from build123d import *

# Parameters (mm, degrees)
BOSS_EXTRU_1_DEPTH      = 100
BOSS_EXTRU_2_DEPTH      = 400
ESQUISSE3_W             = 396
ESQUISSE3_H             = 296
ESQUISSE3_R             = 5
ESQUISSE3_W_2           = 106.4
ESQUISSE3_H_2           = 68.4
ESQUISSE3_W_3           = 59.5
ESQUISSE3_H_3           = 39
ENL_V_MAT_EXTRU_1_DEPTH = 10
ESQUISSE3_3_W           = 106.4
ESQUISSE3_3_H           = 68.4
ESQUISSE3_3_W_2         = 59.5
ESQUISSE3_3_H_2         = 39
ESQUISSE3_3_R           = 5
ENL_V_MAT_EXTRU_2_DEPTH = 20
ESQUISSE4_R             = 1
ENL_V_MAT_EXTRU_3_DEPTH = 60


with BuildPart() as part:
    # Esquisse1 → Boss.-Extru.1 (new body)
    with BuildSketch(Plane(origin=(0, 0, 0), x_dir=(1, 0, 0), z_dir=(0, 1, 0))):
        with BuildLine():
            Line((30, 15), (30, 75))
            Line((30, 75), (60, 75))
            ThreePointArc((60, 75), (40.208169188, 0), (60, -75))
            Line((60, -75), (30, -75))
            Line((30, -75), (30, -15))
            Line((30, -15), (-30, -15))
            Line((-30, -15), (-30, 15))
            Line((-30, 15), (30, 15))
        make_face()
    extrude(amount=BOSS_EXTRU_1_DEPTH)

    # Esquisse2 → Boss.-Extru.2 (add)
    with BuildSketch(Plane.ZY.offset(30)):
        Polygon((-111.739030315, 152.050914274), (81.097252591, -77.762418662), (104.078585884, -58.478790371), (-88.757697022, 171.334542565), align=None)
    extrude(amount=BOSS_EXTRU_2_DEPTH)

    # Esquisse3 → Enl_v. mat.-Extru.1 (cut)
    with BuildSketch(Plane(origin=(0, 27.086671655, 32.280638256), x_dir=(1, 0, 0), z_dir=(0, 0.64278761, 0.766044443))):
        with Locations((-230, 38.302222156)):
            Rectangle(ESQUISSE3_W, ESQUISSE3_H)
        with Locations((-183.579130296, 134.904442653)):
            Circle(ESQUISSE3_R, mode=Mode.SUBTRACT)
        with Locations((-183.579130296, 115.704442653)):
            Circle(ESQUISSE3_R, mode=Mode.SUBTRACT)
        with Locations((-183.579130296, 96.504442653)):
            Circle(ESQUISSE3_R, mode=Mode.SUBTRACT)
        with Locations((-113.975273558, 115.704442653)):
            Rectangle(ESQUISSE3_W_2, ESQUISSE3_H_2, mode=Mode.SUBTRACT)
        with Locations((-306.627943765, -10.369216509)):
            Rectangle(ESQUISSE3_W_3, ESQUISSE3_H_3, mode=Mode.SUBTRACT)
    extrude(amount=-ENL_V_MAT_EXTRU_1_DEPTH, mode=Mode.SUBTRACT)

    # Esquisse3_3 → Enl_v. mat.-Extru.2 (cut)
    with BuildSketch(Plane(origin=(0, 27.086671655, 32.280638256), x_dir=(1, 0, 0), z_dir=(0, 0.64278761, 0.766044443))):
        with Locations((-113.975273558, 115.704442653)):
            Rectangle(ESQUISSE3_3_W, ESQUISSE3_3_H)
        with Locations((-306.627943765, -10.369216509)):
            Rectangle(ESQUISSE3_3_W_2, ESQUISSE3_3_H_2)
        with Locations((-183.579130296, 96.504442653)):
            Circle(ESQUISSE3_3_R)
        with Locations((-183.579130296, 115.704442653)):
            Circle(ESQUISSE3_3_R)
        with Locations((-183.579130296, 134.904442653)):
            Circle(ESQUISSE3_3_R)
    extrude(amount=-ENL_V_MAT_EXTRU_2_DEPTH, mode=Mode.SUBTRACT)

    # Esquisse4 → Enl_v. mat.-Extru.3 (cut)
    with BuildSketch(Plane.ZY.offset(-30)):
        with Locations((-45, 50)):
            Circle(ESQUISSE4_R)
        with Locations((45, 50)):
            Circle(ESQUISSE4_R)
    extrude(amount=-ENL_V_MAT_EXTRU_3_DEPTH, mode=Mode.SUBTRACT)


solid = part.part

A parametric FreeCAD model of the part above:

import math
import FreeCAD as App
import Part
import Sketcher
Q = App.Units.Quantity


def add_polygon(sketch, points):
    """Adds a closed chain of lines whose ends are joined by coincident constraints."""
    first, n = sketch.GeometryCount, len(points)
    for a, b in zip(points, points[1:] + points[:1]):
        sketch.addGeometry(Part.LineSegment(App.Vector(*a, 0), App.Vector(*b, 0)), False)
    for i in range(n):
        sketch.addConstraint(Sketcher.Constraint("Coincident", first + i, 2, first + (i + 1) % n, 1))

doc = App.newDocument("Part")
body = doc.addObject("PartDesign::Body", "Body")

sketch1 = body.newObject("Sketcher::SketchObject", "Sketch")
sketch1.AttachmentSupport = (doc.getObject("XZ_Plane"), [""])
sketch1.MapMode = "FlatFace"
sketch1.addGeometry(Part.LineSegment(App.Vector(30, -75, 0), App.Vector(30, -15, 0)), False)
sketch1.addGeometry(Part.LineSegment(App.Vector(30, -15, 0), App.Vector(-30, -15, 0)), False)
sketch1.addGeometry(Part.LineSegment(App.Vector(-30, -15, 0), App.Vector(-30, 15, 0)), False)
sketch1.addGeometry(Part.LineSegment(App.Vector(-30, 15, 0), App.Vector(30, 15, 0)), False)
sketch1.addGeometry(Part.LineSegment(App.Vector(30, 15, 0), App.Vector(30, 75, 0)), False)
sketch1.addGeometry(Part.LineSegment(App.Vector(30, 75, 0), App.Vector(60, 75, 0)), False)
sketch1.addGeometry(Part.ArcOfCircle(Part.Circle(App.Vector(192.208169, 0, 0), App.Vector(0, 0, 1), 152), math.radians(150.434313), math.radians(209.565687)), False)
sketch1.addGeometry(Part.LineSegment(App.Vector(60, -75, 0), App.Vector(30, -75, 0)), False)
sketch1.addConstraint(Sketcher.Constraint("Coincident", 0, 2, 1, 1))
sketch1.addConstraint(Sketcher.Constraint("Coincident", 1, 2, 2, 1))
sketch1.addConstraint(Sketcher.Constraint("Coincident", 2, 2, 3, 1))
sketch1.addConstraint(Sketcher.Constraint("Coincident", 3, 2, 4, 1))
sketch1.addConstraint(Sketcher.Constraint("Coincident", 4, 2, 5, 1))
sketch1.addConstraint(Sketcher.Constraint("Coincident", 5, 2, 6, 1))
sketch1.addConstraint(Sketcher.Constraint("Coincident", 6, 2, 7, 1))
sketch1.addConstraint(Sketcher.Constraint("Coincident", 7, 2, 0, 1))
sketch1.addConstraint(Sketcher.Constraint("Vertical", 0))
sketch1.addConstraint(Sketcher.Constraint("Horizontal", 1))
sketch1.addConstraint(Sketcher.Constraint("Vertical", 2))
sketch1.addConstraint(Sketcher.Constraint("Horizontal", 3))
sketch1.addConstraint(Sketcher.Constraint("Vertical", 4))
sketch1.addConstraint(Sketcher.Constraint("Horizontal", 5))
sketch1.addConstraint(Sketcher.Constraint("Horizontal", 7))
sketch1.addConstraint(Sketcher.Constraint("Symmetric", 0, 2, 2, 2, -1, 1))
sketch1.addConstraint(Sketcher.Constraint("Symmetric", 5, 2, 6, 2, -1))
sketch1.addConstraint(Sketcher.Constraint("Vertical", 0, 2, 3, 2))
sketch1.addConstraint(Sketcher.Constraint("Equal", 3, 0))
sketch1.addConstraint(Sketcher.Constraint("Equal", 7, 2))
sketch1.addConstraint(Sketcher.Constraint("Radius", 6, 152.0))
sketch1.addConstraint(Sketcher.Constraint("DistanceX", 1, 2, 1, 1, 60.0))
sketch1.addConstraint(Sketcher.Constraint("DistanceX", 5, 1, 5, 2, 30.0))
pad1 = body.newObject("PartDesign::Pad", "Pad")
pad1.Profile = sketch1
pad1.Length = 100
pad1.Reversed = True

sketch2 = body.newObject("Sketcher::SketchObject", "Sketch001")
sketch2.AttachmentSupport = (doc.getObject("YZ_Plane"), [""])
sketch2.MapMode = "FlatFace"
sketch2.AttachmentOffset = App.Placement(App.Vector(0, 0, -30), App.Rotation())
add_polygon(sketch2, [(152.050914, -111.73903), (-77.762419, 81.097253), (-58.47879, 104.078586), (171.334543, -88.757697)])
sketch2.addConstraint(Sketcher.Constraint("Perpendicular", 0, 1))
sketch2.addConstraint(Sketcher.Constraint("Perpendicular", 1, 2))
sketch2.addConstraint(Sketcher.Constraint("Perpendicular", 2, 3))
sketch2.addConstraint(Sketcher.Constraint("Angle", 0, Q("140 deg")))
sketch2.addConstraint(Sketcher.Constraint("Distance", 0, 300.0))
sketch2.addConstraint(Sketcher.Constraint("Distance", 1, 30.0))
sketch2.addConstraint(Sketcher.Constraint("DistanceX", 0, 2, -1, 1, 77.762419))
sketch2.addConstraint(Sketcher.Constraint("DistanceY", 3, 2, -1, 1, 111.73903))
pad2 = body.newObject("PartDesign::Pad", "Pad001")
pad2.Profile = sketch2
pad2.Length = 400
pad2.Reversed = True

sketch3 = body.newObject("Sketcher::SketchObject", "Sketch002")
sketch3.Placement = App.Placement(App.Vector(0, 27.086672, 32.280638), App.Rotation(App.Vector(1, 0, 0), App.Vector(0, 0.766044443, -0.64278761), App.Vector(0, 0.64278761, 0.766044443), "ZXY"))
add_polygon(sketch3, [(-428, 186.302222), (-428, -109.697778), (-32, -109.697778), (-32, 186.302222)])
add_polygon(sketch3, [(-276.877944, -29.869217), (-336.377944, -29.869217), (-336.377944, 9.130783), (-276.877944, 9.130783)])
sketch3.addGeometry(Part.Circle(App.Vector(-183.57913, 96.504443, 0), App.Vector(0, 0, 1), 5), False)
sketch3.addGeometry(Part.Circle(App.Vector(-183.57913, 115.704443, 0), App.Vector(0, 0, 1), 5), False)
sketch3.addGeometry(Part.Circle(App.Vector(-183.57913, 134.904443, 0), App.Vector(0, 0, 1), 5), False)
add_polygon(sketch3, [(-60.775274, 81.504443), (-167.175274, 81.504443), (-167.175274, 149.904443), (-60.775274, 149.904443)])
sketch3.addConstraint(Sketcher.Constraint("Vertical", 0))
sketch3.addConstraint(Sketcher.Constraint("Horizontal", 1))
sketch3.addConstraint(Sketcher.Constraint("Vertical", 2))
sketch3.addConstraint(Sketcher.Constraint("Horizontal", 3))
sketch3.addConstraint(Sketcher.Constraint("Horizontal", 4))
sketch3.addConstraint(Sketcher.Constraint("Vertical", 5))
sketch3.addConstraint(Sketcher.Constraint("Horizontal", 6))
sketch3.addConstraint(Sketcher.Constraint("Vertical", 7))
sketch3.addConstraint(Sketcher.Constraint("Horizontal", 11))
sketch3.addConstraint(Sketcher.Constraint("Vertical", 12))
sketch3.addConstraint(Sketcher.Constraint("Horizontal", 13))
sketch3.addConstraint(Sketcher.Constraint("Vertical", 14))
sketch3.addConstraint(Sketcher.Constraint("Equal", 8, 9))
sketch3.addConstraint(Sketcher.Constraint("Equal", 9, 10))
sketch3.addConstraint(Sketcher.Constraint("Vertical", 8, 3, 9, 3))
sketch3.addConstraint(Sketcher.Constraint("Vertical", 9, 3, 10, 3))
sketch3.addConstraint(Sketcher.Constraint("Diameter", 8, 10.0))
sketch3.addConstraint(Sketcher.Constraint("DistanceX", 1, 1, 1, 2, 396.0))
sketch3.addConstraint(Sketcher.Constraint("DistanceY", 0, 2, 0, 1, 296.0))
sketch3.addConstraint(Sketcher.Constraint("DistanceY", 5, 1, 5, 2, 39.0))
sketch3.addConstraint(Sketcher.Constraint("DistanceX", 4, 2, 4, 1, 59.5))
sketch3.addConstraint(Sketcher.Constraint("DistanceX", 11, 2, 11, 1, 106.4))
sketch3.addConstraint(Sketcher.Constraint("DistanceY", 12, 1, 12, 2, 68.4))
sketch3.addConstraint(Sketcher.Constraint("DistanceX", 0, 2, -1, 1, 428.0))
sketch3.addConstraint(Sketcher.Constraint("DistanceY", 11, 2, 8, 3, 15.0))
sketch3.addConstraint(Sketcher.Constraint("DistanceY", 10, 3, 12, 2, 15.0))
sketch3.addConstraint(Sketcher.Constraint("DistanceY", 8, 3, 9, 3, 19.2))
sketch3.addConstraint(Sketcher.Constraint("DistanceX", 8, 3, -1, 1, 183.57913))
sketch3.addConstraint(Sketcher.Constraint("DistanceY", 0, 2, 8, 3, 206.202221))
sketch3.addConstraint(Sketcher.Constraint("DistanceY", 0, 2, 4, 2, 79.828561))
sketch3.addConstraint(Sketcher.Constraint("DistanceX", 6, 2, 11, 2, 109.70267))
sketch3.addConstraint(Sketcher.Constraint("DistanceY", -1, 1, 8, 3, 96.504443))
sketch3.addConstraint(Sketcher.Constraint("DistanceX", 4, 2, -1, 1, 336.377944))
pocket1 = body.newObject("PartDesign::Pocket", "Pocket")
pocket1.Profile = sketch3
pocket1.Length = 10

sketch4 = body.newObject("Sketcher::SketchObject", "Sketch003")
sketch4.Placement = App.Placement(App.Vector(0, 27.086672, 32.280638), App.Rotation(App.Vector(1, 0, 0), App.Vector(0, 0.766044443, -0.64278761), App.Vector(0, 0.64278761, 0.766044443), "ZXY"))
add_polygon(sketch4, [(-167.175274, 149.904443), (-167.175274, 81.504443), (-60.775274, 81.504443), (-60.775274, 149.904443)])
add_polygon(sketch4, [(-336.377944, 9.130783), (-336.377944, -29.869217), (-276.877944, -29.869217), (-276.877944, 9.130783)])
sketch4.addGeometry(Part.Circle(App.Vector(-183.57913, 96.504443, 0), App.Vector(0, 0, 1), 5), False)
sketch4.addGeometry(Part.Circle(App.Vector(-183.57913, 115.704443, 0), App.Vector(0, 0, 1), 5), False)
sketch4.addGeometry(Part.Circle(App.Vector(-183.57913, 134.904443, 0), App.Vector(0, 0, 1), 5), False)
sketch4.addConstraint(Sketcher.Constraint("Vertical", 0))
sketch4.addConstraint(Sketcher.Constraint("Horizontal", 1))
sketch4.addConstraint(Sketcher.Constraint("Vertical", 2))
sketch4.addConstraint(Sketcher.Constraint("Horizontal", 3))
sketch4.addConstraint(Sketcher.Constraint("Vertical", 4))
sketch4.addConstraint(Sketcher.Constraint("Horizontal", 5))
sketch4.addConstraint(Sketcher.Constraint("Vertical", 6))
sketch4.addConstraint(Sketcher.Constraint("Horizontal", 7))
sketch4.addConstraint(Sketcher.Constraint("Equal", 8, 9))
sketch4.addConstraint(Sketcher.Constraint("Equal", 9, 10))
sketch4.addConstraint(Sketcher.Constraint("Vertical", 8, 3, 9, 3))
sketch4.addConstraint(Sketcher.Constraint("Vertical", 9, 3, 10, 3))
sketch4.addConstraint(Sketcher.Constraint("Diameter", 8, 10.0))
sketch4.addConstraint(Sketcher.Constraint("DistanceY", 4, 2, 4, 1, 39.0))
sketch4.addConstraint(Sketcher.Constraint("DistanceX", 1, 1, 1, 2, 106.4))
sketch4.addConstraint(Sketcher.Constraint("DistanceX", 5, 1, 5, 2, 59.5))
sketch4.addConstraint(Sketcher.Constraint("DistanceY", 0, 2, 0, 1, 68.4))
sketch4.addConstraint(Sketcher.Constraint("DistanceY", 0, 2, 8, 3, 15.0))
sketch4.addConstraint(Sketcher.Constraint("DistanceY", 10, 3, 2, 2, 15.0))
sketch4.addConstraint(Sketcher.Constraint("DistanceY", 8, 3, 9, 3, 19.2))
sketch4.addConstraint(Sketcher.Constraint("DistanceX", 8, 3, -1, 1, 183.57913))
sketch4.addConstraint(Sketcher.Constraint("DistanceY", 4, 2, 8, 3, 126.373659))
sketch4.addConstraint(Sketcher.Constraint("DistanceX", 4, 2, 0, 2, 169.20267))
sketch4.addConstraint(Sketcher.Constraint("DistanceY", -1, 1, 8, 3, 96.504443))
sketch4.addConstraint(Sketcher.Constraint("DistanceX", 0, 2, -1, 1, 167.175274))
pocket2 = body.newObject("PartDesign::Pocket", "Pocket001")
pocket2.Profile = sketch4
pocket2.Length = 20

sketch5 = body.newObject("Sketcher::SketchObject", "Sketch004")
sketch5.AttachmentSupport = (doc.getObject("YZ_Plane"), [""])
sketch5.MapMode = "FlatFace"
sketch5.AttachmentOffset = App.Placement(App.Vector(0, 0, 30), App.Rotation())
sketch5.addGeometry(Part.Circle(App.Vector(50, -45, 0), App.Vector(0, 0, 1), 1), False)
sketch5.addGeometry(Part.Circle(App.Vector(50, 45, 0), App.Vector(0, 0, 1), 1), False)
sketch5.addConstraint(Sketcher.Constraint("Equal", 0, 1))
sketch5.addConstraint(Sketcher.Constraint("Symmetric", 0, 3, 1, 3, -1))
sketch5.addConstraint(Sketcher.Constraint("Diameter", 0, 2.0))
sketch5.addConstraint(Sketcher.Constraint("DistanceX", -1, 1, 0, 3, 50.0))
sketch5.addConstraint(Sketcher.Constraint("DistanceY", 0, 3, -1, 1, 45.0))
pocket3 = body.newObject("PartDesign::Pocket", "Pocket002")
pocket3.Profile = sketch5
pocket3.Length = 60
pocket3.Reversed = True

doc.recompute()
